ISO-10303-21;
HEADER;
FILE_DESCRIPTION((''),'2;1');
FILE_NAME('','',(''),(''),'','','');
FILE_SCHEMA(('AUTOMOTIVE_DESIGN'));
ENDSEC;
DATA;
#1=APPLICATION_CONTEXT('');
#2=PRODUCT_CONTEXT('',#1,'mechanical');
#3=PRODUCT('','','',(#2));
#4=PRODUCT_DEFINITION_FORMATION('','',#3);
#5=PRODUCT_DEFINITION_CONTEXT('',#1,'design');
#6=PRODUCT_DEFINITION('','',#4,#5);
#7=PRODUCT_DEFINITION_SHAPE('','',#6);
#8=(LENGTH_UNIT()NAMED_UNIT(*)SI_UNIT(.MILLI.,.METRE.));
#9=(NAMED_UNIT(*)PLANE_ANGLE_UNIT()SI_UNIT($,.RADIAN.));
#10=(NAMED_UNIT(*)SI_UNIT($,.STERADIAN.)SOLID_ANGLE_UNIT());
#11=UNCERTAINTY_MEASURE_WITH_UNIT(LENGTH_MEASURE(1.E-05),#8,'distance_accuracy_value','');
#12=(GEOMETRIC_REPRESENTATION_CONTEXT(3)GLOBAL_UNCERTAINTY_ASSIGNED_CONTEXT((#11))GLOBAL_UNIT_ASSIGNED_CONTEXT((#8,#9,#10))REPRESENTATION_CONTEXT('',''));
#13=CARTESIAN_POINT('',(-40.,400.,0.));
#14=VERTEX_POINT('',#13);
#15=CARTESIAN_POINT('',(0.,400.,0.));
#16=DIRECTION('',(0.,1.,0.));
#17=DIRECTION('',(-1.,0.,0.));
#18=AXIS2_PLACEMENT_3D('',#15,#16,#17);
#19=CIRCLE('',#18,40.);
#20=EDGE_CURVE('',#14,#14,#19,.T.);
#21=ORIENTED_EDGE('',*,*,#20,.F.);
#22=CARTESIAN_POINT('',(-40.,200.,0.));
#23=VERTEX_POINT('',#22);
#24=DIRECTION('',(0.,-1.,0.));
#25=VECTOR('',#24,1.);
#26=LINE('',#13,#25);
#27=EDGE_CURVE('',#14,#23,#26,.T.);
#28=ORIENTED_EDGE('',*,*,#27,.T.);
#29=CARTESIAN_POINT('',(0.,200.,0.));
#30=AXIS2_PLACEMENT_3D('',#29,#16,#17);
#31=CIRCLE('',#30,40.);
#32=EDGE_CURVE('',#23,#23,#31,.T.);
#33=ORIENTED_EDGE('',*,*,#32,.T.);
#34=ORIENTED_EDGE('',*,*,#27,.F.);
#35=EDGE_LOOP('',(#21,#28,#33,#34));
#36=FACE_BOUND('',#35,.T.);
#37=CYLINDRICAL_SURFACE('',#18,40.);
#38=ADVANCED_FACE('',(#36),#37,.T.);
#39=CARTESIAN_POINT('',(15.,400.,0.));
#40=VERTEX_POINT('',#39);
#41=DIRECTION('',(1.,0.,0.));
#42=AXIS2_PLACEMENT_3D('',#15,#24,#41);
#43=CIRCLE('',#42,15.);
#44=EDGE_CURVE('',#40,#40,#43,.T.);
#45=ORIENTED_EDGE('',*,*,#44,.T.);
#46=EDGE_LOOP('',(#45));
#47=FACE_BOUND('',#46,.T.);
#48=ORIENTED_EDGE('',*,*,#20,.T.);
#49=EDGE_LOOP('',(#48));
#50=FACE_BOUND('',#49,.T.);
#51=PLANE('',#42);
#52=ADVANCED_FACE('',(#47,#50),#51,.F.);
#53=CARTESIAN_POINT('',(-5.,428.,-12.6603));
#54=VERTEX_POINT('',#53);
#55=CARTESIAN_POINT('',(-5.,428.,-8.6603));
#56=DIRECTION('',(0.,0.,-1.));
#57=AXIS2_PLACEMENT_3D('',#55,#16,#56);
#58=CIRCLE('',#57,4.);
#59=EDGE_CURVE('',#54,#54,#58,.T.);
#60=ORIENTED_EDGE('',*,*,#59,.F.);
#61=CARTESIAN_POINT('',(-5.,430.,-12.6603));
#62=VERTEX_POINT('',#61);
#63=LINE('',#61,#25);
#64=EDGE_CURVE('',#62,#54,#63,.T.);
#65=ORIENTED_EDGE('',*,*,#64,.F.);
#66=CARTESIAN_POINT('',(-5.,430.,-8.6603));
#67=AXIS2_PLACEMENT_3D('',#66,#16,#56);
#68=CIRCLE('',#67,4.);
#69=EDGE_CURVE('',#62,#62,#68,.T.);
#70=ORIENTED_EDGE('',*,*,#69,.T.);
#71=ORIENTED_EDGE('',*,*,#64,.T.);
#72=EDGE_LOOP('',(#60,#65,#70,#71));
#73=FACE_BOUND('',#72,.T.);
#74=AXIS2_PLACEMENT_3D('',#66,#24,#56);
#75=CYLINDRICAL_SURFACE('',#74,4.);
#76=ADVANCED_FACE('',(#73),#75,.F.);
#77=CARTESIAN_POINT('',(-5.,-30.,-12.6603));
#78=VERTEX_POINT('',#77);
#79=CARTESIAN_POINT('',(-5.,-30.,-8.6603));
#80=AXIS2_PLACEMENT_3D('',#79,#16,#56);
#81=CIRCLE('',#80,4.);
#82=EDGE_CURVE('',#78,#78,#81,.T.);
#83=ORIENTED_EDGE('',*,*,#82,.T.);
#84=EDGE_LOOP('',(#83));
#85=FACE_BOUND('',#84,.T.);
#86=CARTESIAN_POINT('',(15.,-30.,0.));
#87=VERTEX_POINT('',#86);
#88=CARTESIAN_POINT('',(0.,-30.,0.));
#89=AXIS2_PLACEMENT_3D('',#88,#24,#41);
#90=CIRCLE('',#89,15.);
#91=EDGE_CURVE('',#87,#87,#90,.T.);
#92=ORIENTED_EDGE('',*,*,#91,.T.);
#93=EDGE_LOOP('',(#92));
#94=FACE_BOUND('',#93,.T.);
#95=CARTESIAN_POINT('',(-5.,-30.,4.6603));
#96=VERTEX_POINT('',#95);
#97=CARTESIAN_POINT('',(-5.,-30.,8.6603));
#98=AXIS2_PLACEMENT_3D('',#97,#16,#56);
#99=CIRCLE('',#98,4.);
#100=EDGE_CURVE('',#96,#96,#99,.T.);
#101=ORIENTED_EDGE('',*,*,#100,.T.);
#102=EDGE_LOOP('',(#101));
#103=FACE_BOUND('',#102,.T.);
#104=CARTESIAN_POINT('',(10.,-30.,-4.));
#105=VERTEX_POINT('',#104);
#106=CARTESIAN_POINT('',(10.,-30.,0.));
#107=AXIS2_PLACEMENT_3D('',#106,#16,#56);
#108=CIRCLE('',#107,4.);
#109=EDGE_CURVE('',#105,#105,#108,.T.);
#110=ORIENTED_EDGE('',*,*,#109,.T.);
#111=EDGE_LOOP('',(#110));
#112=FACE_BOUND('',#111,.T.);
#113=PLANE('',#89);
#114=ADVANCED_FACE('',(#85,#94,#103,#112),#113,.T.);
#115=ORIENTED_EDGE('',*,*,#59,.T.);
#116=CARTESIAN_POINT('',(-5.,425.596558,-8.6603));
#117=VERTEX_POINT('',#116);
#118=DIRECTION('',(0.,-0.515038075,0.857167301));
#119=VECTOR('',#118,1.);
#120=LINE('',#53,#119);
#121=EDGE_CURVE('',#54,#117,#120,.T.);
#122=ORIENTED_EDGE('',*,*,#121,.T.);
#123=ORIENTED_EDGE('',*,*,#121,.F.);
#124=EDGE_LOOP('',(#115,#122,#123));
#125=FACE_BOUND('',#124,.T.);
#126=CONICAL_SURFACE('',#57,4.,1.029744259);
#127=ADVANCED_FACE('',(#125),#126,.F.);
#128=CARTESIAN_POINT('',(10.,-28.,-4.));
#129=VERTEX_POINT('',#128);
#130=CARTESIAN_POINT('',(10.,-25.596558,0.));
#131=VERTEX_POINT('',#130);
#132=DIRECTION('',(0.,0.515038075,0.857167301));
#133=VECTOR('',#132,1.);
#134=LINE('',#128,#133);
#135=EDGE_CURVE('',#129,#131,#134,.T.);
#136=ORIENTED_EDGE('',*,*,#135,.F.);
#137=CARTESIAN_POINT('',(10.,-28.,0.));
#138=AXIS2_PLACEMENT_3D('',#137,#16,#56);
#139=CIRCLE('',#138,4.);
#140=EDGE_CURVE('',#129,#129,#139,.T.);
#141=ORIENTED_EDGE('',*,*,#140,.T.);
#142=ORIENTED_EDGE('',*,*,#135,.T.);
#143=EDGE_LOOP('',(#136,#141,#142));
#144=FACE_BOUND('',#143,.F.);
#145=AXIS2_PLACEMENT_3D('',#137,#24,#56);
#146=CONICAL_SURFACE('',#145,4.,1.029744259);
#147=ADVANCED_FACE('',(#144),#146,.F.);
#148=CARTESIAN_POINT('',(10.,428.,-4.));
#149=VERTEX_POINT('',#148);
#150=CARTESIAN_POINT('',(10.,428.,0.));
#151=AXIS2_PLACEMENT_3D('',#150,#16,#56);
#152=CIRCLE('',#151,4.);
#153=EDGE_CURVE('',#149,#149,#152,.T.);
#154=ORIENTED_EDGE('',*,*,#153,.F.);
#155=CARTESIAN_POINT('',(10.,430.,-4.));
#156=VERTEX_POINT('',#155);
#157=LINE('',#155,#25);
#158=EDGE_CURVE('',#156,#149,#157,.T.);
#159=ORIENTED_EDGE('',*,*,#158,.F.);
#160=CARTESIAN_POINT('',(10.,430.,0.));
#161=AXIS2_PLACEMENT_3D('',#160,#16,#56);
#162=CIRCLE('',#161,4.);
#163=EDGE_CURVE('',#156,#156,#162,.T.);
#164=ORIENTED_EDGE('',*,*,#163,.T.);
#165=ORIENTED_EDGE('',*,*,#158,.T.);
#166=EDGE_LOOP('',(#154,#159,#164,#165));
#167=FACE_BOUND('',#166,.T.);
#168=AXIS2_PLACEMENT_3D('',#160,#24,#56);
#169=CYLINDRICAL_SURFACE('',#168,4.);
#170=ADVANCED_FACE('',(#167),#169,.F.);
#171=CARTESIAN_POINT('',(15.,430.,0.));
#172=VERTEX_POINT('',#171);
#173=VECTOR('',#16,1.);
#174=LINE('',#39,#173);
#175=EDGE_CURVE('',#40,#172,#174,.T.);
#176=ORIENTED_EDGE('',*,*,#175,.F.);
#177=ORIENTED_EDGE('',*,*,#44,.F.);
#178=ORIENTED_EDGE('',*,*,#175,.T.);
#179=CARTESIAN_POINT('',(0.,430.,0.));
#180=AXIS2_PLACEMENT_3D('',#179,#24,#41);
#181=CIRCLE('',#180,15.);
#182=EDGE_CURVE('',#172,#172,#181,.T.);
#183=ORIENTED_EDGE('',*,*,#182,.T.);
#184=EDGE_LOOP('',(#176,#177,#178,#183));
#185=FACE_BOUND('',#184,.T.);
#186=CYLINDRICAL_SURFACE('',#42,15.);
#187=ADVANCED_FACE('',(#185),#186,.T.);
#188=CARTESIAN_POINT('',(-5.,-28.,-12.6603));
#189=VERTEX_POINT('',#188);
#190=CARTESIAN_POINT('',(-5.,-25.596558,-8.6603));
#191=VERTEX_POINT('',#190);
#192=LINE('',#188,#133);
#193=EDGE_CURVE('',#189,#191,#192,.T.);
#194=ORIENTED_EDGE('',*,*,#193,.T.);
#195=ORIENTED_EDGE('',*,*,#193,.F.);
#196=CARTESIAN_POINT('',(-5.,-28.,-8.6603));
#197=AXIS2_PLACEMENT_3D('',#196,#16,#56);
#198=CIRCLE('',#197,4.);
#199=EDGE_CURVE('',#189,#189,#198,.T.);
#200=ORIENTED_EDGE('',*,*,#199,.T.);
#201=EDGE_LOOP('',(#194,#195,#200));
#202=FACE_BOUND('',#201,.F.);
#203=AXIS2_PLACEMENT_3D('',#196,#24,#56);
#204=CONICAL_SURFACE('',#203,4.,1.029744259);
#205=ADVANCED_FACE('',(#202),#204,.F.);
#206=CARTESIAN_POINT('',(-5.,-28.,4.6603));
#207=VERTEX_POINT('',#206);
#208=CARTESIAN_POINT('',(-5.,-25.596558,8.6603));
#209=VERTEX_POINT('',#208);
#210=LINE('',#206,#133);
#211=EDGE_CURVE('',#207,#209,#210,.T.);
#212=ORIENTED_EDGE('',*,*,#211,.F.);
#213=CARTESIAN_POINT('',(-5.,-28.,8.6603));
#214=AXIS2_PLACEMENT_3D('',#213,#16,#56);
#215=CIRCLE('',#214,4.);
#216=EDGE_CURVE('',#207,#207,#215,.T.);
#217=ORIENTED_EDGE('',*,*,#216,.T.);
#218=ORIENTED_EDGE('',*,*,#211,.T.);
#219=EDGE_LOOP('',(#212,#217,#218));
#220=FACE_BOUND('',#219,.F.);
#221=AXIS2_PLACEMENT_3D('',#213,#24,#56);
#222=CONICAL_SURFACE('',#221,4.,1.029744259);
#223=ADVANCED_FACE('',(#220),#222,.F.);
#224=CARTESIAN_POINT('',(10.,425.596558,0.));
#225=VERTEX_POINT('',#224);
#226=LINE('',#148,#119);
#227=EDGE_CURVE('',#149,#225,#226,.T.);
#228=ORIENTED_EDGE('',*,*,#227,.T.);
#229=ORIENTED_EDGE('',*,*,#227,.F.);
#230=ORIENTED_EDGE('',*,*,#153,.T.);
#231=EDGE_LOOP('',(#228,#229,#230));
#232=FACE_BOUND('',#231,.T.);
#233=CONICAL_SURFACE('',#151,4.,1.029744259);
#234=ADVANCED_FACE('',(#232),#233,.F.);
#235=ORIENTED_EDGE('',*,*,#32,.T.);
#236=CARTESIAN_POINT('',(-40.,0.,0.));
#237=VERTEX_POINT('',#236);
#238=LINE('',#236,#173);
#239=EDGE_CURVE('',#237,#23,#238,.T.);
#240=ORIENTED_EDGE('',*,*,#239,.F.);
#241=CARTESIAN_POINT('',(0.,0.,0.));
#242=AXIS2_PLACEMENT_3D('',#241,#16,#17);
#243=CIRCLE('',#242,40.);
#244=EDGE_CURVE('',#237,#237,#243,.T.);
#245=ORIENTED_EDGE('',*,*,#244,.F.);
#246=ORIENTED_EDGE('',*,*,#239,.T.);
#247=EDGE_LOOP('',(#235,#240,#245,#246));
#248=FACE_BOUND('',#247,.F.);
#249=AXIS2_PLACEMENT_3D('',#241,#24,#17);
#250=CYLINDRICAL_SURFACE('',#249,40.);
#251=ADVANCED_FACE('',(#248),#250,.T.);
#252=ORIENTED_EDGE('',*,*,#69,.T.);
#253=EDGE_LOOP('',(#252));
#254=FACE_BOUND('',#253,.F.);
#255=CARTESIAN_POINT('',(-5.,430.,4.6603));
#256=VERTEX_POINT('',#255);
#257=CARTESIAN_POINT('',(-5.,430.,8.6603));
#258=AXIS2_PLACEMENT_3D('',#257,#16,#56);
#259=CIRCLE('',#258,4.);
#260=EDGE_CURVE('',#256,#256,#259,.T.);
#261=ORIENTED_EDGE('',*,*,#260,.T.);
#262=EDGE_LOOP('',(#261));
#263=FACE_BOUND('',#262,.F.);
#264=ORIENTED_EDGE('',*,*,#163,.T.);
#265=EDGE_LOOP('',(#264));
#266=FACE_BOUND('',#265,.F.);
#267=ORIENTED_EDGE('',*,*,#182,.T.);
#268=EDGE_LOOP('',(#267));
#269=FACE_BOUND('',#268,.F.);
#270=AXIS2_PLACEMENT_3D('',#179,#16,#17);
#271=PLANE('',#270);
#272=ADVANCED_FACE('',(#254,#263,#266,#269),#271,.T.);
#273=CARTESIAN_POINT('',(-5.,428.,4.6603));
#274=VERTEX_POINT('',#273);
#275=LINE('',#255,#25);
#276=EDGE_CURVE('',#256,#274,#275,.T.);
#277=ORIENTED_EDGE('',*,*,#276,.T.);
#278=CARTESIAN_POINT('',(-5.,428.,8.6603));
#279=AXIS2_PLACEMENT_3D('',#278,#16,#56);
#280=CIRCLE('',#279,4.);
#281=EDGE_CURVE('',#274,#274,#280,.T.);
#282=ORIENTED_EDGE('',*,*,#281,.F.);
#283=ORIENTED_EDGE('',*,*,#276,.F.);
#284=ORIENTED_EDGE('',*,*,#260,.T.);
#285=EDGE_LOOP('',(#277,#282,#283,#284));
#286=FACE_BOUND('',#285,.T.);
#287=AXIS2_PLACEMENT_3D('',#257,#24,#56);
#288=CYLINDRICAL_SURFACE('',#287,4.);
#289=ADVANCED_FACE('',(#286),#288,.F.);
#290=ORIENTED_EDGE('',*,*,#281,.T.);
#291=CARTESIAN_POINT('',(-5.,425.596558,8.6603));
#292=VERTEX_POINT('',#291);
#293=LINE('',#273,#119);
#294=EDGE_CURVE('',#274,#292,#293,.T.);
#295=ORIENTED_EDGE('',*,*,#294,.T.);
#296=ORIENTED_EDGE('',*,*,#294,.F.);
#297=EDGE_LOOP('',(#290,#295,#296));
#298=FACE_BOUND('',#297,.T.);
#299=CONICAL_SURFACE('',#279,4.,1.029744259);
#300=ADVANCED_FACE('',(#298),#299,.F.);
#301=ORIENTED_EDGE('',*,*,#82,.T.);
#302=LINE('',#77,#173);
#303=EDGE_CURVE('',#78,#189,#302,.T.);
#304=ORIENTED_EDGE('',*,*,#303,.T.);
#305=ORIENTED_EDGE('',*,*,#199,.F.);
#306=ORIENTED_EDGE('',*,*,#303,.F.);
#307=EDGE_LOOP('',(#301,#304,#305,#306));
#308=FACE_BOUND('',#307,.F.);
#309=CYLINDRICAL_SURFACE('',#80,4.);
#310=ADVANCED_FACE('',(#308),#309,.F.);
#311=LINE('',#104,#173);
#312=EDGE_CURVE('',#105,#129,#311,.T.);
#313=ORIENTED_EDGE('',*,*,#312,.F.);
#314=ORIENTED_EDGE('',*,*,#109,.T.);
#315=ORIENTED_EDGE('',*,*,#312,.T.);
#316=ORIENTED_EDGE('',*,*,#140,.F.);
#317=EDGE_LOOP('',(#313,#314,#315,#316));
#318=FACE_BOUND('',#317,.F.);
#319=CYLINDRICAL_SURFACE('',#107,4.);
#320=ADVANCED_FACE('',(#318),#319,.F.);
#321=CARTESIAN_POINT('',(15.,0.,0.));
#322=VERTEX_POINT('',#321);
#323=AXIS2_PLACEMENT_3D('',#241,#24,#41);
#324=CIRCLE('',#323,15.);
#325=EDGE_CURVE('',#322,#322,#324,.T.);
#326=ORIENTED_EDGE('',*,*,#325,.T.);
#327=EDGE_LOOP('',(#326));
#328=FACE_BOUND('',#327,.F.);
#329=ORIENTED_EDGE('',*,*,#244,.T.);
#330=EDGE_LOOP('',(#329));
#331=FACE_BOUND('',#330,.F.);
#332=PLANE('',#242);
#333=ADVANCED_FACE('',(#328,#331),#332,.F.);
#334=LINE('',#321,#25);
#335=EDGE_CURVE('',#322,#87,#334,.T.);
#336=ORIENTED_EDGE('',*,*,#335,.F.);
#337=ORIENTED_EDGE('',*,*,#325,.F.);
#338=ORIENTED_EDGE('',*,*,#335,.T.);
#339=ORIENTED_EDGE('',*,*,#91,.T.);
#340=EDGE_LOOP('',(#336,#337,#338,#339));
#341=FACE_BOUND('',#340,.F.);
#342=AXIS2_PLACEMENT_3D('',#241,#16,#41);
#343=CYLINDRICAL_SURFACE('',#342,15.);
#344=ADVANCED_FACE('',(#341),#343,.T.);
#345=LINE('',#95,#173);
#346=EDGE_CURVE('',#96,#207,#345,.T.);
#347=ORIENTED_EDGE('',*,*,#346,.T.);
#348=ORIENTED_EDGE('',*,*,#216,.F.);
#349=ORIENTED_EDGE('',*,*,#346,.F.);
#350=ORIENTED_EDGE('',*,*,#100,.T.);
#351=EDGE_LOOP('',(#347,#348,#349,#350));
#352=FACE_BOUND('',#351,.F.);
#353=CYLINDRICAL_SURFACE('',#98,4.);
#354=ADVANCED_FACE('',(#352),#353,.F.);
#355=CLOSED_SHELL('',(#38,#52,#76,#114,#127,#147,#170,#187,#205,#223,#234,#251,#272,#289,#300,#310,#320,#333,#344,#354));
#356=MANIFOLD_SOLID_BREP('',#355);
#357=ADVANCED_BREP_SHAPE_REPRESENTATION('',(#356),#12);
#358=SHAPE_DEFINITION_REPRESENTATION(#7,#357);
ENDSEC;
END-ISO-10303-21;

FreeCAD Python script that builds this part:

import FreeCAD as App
import Part
import Sketcher

V = App.Vector

doc = App.newDocument("Part")
body = doc.addObject("PartDesign::Body", "Body")

sketch1 = body.newObject("Sketcher::SketchObject", "Sketch")
sketch1.AttachmentSupport = (doc.getObject("XZ_Plane"), [""])
sketch1.MapMode = "FlatFace"
sketch1.addGeometry(Part.Circle(V(0, 0, 0), V(0, 0, 1), 40), False)
sketch1.addConstraint([
    Sketcher.Constraint("Coincident", 0, 3, -1, 1),
    Sketcher.Constraint("Diameter", 0, 80.0),
])
pad1 = body.newObject("PartDesign::Pad", "Pad")
pad1.Profile = sketch1
pad1.Length = 200
pad1.Reversed = True

sketch2 = body.newObject("Sketcher::SketchObject", "Sketch001")
sketch2.AttachmentSupport = (doc.getObject("XZ_Plane"), [""])
sketch2.MapMode = "FlatFace"
sketch2.addGeometry(Part.Circle(V(0, 0, 0), V(0, 0, 1), 15), False)
sketch2.addConstraint([
    Sketcher.Constraint("Coincident", 0, 3, -1, 1),
    Sketcher.Constraint("Diameter", 0, 30.0),
])
pad2 = body.newObject("PartDesign::Pad", "Pad001")
pad2.Profile = sketch2
pad2.Length = 30

sketch3 = body.newObject("Sketcher::SketchObject", "Sketch002")
sketch3.AttachmentSupport = (doc.getObject("XZ_Plane"), [""])
sketch3.MapMode = "FlatFace"
sketch3.AttachmentOffset = App.Placement(V(0, 0, 30), App.Rotation())
sketch3.addGeometry([
    Part.Circle(V(-5, -8.6603, 0), V(0, 0, 1), 4),
    Part.Circle(V(-5, 8.6603, 0), V(0, 0, 1), 4),
    Part.Circle(V(10, 0, 0), V(0, 0, 1), 4),
], False)
sketch3.addConstraint([
    Sketcher.Constraint("Equal", 0, 1),
    Sketcher.Constraint("Equal", 1, 2),
    Sketcher.Constraint("Symmetric", 0, 3, 1, 3, -1),
    Sketcher.Constraint("PointOnObject", 2, 3, -1),
    Sketcher.Constraint("Diameter", 0, 8.0),
    Sketcher.Constraint("DistanceX", 0, 3, -1, 1, 5.0),
    Sketcher.Constraint("DistanceX", -1, 1, 2, 3, 10.0),
    Sketcher.Constraint("DistanceY", 0, 3, -1, 1, 8.6603),
])
doc.recompute()
hole = body.newObject("PartDesign::Hole", "Hole")
hole.Profile = sketch3
hole.ThreadType = "None"
hole.Diameter = 8
hole.DepthType = "Dimension"
hole.Depth = 2
hole.DrillPoint = "Angled"
hole.DrillPointAngle = 118
doc.recompute()

datumplane = body.newObject("PartDesign::Plane", "DatumPlane")
datumplane.AttachmentSupport = (doc.getObject("XZ_Plane"), [""])
datumplane.MapMode = "FlatFace"
datumplane.AttachmentOffset = App.Placement(V(0, 0, -200), App.Rotation())
mirrored = body.newObject("PartDesign::Mirrored", "Mirrored")
mirrored.Originals = [pad1, pad2, hole]
mirrored.MirrorPlane = (datumplane, [""])
body.Tip = mirrored

doc.recompute()
